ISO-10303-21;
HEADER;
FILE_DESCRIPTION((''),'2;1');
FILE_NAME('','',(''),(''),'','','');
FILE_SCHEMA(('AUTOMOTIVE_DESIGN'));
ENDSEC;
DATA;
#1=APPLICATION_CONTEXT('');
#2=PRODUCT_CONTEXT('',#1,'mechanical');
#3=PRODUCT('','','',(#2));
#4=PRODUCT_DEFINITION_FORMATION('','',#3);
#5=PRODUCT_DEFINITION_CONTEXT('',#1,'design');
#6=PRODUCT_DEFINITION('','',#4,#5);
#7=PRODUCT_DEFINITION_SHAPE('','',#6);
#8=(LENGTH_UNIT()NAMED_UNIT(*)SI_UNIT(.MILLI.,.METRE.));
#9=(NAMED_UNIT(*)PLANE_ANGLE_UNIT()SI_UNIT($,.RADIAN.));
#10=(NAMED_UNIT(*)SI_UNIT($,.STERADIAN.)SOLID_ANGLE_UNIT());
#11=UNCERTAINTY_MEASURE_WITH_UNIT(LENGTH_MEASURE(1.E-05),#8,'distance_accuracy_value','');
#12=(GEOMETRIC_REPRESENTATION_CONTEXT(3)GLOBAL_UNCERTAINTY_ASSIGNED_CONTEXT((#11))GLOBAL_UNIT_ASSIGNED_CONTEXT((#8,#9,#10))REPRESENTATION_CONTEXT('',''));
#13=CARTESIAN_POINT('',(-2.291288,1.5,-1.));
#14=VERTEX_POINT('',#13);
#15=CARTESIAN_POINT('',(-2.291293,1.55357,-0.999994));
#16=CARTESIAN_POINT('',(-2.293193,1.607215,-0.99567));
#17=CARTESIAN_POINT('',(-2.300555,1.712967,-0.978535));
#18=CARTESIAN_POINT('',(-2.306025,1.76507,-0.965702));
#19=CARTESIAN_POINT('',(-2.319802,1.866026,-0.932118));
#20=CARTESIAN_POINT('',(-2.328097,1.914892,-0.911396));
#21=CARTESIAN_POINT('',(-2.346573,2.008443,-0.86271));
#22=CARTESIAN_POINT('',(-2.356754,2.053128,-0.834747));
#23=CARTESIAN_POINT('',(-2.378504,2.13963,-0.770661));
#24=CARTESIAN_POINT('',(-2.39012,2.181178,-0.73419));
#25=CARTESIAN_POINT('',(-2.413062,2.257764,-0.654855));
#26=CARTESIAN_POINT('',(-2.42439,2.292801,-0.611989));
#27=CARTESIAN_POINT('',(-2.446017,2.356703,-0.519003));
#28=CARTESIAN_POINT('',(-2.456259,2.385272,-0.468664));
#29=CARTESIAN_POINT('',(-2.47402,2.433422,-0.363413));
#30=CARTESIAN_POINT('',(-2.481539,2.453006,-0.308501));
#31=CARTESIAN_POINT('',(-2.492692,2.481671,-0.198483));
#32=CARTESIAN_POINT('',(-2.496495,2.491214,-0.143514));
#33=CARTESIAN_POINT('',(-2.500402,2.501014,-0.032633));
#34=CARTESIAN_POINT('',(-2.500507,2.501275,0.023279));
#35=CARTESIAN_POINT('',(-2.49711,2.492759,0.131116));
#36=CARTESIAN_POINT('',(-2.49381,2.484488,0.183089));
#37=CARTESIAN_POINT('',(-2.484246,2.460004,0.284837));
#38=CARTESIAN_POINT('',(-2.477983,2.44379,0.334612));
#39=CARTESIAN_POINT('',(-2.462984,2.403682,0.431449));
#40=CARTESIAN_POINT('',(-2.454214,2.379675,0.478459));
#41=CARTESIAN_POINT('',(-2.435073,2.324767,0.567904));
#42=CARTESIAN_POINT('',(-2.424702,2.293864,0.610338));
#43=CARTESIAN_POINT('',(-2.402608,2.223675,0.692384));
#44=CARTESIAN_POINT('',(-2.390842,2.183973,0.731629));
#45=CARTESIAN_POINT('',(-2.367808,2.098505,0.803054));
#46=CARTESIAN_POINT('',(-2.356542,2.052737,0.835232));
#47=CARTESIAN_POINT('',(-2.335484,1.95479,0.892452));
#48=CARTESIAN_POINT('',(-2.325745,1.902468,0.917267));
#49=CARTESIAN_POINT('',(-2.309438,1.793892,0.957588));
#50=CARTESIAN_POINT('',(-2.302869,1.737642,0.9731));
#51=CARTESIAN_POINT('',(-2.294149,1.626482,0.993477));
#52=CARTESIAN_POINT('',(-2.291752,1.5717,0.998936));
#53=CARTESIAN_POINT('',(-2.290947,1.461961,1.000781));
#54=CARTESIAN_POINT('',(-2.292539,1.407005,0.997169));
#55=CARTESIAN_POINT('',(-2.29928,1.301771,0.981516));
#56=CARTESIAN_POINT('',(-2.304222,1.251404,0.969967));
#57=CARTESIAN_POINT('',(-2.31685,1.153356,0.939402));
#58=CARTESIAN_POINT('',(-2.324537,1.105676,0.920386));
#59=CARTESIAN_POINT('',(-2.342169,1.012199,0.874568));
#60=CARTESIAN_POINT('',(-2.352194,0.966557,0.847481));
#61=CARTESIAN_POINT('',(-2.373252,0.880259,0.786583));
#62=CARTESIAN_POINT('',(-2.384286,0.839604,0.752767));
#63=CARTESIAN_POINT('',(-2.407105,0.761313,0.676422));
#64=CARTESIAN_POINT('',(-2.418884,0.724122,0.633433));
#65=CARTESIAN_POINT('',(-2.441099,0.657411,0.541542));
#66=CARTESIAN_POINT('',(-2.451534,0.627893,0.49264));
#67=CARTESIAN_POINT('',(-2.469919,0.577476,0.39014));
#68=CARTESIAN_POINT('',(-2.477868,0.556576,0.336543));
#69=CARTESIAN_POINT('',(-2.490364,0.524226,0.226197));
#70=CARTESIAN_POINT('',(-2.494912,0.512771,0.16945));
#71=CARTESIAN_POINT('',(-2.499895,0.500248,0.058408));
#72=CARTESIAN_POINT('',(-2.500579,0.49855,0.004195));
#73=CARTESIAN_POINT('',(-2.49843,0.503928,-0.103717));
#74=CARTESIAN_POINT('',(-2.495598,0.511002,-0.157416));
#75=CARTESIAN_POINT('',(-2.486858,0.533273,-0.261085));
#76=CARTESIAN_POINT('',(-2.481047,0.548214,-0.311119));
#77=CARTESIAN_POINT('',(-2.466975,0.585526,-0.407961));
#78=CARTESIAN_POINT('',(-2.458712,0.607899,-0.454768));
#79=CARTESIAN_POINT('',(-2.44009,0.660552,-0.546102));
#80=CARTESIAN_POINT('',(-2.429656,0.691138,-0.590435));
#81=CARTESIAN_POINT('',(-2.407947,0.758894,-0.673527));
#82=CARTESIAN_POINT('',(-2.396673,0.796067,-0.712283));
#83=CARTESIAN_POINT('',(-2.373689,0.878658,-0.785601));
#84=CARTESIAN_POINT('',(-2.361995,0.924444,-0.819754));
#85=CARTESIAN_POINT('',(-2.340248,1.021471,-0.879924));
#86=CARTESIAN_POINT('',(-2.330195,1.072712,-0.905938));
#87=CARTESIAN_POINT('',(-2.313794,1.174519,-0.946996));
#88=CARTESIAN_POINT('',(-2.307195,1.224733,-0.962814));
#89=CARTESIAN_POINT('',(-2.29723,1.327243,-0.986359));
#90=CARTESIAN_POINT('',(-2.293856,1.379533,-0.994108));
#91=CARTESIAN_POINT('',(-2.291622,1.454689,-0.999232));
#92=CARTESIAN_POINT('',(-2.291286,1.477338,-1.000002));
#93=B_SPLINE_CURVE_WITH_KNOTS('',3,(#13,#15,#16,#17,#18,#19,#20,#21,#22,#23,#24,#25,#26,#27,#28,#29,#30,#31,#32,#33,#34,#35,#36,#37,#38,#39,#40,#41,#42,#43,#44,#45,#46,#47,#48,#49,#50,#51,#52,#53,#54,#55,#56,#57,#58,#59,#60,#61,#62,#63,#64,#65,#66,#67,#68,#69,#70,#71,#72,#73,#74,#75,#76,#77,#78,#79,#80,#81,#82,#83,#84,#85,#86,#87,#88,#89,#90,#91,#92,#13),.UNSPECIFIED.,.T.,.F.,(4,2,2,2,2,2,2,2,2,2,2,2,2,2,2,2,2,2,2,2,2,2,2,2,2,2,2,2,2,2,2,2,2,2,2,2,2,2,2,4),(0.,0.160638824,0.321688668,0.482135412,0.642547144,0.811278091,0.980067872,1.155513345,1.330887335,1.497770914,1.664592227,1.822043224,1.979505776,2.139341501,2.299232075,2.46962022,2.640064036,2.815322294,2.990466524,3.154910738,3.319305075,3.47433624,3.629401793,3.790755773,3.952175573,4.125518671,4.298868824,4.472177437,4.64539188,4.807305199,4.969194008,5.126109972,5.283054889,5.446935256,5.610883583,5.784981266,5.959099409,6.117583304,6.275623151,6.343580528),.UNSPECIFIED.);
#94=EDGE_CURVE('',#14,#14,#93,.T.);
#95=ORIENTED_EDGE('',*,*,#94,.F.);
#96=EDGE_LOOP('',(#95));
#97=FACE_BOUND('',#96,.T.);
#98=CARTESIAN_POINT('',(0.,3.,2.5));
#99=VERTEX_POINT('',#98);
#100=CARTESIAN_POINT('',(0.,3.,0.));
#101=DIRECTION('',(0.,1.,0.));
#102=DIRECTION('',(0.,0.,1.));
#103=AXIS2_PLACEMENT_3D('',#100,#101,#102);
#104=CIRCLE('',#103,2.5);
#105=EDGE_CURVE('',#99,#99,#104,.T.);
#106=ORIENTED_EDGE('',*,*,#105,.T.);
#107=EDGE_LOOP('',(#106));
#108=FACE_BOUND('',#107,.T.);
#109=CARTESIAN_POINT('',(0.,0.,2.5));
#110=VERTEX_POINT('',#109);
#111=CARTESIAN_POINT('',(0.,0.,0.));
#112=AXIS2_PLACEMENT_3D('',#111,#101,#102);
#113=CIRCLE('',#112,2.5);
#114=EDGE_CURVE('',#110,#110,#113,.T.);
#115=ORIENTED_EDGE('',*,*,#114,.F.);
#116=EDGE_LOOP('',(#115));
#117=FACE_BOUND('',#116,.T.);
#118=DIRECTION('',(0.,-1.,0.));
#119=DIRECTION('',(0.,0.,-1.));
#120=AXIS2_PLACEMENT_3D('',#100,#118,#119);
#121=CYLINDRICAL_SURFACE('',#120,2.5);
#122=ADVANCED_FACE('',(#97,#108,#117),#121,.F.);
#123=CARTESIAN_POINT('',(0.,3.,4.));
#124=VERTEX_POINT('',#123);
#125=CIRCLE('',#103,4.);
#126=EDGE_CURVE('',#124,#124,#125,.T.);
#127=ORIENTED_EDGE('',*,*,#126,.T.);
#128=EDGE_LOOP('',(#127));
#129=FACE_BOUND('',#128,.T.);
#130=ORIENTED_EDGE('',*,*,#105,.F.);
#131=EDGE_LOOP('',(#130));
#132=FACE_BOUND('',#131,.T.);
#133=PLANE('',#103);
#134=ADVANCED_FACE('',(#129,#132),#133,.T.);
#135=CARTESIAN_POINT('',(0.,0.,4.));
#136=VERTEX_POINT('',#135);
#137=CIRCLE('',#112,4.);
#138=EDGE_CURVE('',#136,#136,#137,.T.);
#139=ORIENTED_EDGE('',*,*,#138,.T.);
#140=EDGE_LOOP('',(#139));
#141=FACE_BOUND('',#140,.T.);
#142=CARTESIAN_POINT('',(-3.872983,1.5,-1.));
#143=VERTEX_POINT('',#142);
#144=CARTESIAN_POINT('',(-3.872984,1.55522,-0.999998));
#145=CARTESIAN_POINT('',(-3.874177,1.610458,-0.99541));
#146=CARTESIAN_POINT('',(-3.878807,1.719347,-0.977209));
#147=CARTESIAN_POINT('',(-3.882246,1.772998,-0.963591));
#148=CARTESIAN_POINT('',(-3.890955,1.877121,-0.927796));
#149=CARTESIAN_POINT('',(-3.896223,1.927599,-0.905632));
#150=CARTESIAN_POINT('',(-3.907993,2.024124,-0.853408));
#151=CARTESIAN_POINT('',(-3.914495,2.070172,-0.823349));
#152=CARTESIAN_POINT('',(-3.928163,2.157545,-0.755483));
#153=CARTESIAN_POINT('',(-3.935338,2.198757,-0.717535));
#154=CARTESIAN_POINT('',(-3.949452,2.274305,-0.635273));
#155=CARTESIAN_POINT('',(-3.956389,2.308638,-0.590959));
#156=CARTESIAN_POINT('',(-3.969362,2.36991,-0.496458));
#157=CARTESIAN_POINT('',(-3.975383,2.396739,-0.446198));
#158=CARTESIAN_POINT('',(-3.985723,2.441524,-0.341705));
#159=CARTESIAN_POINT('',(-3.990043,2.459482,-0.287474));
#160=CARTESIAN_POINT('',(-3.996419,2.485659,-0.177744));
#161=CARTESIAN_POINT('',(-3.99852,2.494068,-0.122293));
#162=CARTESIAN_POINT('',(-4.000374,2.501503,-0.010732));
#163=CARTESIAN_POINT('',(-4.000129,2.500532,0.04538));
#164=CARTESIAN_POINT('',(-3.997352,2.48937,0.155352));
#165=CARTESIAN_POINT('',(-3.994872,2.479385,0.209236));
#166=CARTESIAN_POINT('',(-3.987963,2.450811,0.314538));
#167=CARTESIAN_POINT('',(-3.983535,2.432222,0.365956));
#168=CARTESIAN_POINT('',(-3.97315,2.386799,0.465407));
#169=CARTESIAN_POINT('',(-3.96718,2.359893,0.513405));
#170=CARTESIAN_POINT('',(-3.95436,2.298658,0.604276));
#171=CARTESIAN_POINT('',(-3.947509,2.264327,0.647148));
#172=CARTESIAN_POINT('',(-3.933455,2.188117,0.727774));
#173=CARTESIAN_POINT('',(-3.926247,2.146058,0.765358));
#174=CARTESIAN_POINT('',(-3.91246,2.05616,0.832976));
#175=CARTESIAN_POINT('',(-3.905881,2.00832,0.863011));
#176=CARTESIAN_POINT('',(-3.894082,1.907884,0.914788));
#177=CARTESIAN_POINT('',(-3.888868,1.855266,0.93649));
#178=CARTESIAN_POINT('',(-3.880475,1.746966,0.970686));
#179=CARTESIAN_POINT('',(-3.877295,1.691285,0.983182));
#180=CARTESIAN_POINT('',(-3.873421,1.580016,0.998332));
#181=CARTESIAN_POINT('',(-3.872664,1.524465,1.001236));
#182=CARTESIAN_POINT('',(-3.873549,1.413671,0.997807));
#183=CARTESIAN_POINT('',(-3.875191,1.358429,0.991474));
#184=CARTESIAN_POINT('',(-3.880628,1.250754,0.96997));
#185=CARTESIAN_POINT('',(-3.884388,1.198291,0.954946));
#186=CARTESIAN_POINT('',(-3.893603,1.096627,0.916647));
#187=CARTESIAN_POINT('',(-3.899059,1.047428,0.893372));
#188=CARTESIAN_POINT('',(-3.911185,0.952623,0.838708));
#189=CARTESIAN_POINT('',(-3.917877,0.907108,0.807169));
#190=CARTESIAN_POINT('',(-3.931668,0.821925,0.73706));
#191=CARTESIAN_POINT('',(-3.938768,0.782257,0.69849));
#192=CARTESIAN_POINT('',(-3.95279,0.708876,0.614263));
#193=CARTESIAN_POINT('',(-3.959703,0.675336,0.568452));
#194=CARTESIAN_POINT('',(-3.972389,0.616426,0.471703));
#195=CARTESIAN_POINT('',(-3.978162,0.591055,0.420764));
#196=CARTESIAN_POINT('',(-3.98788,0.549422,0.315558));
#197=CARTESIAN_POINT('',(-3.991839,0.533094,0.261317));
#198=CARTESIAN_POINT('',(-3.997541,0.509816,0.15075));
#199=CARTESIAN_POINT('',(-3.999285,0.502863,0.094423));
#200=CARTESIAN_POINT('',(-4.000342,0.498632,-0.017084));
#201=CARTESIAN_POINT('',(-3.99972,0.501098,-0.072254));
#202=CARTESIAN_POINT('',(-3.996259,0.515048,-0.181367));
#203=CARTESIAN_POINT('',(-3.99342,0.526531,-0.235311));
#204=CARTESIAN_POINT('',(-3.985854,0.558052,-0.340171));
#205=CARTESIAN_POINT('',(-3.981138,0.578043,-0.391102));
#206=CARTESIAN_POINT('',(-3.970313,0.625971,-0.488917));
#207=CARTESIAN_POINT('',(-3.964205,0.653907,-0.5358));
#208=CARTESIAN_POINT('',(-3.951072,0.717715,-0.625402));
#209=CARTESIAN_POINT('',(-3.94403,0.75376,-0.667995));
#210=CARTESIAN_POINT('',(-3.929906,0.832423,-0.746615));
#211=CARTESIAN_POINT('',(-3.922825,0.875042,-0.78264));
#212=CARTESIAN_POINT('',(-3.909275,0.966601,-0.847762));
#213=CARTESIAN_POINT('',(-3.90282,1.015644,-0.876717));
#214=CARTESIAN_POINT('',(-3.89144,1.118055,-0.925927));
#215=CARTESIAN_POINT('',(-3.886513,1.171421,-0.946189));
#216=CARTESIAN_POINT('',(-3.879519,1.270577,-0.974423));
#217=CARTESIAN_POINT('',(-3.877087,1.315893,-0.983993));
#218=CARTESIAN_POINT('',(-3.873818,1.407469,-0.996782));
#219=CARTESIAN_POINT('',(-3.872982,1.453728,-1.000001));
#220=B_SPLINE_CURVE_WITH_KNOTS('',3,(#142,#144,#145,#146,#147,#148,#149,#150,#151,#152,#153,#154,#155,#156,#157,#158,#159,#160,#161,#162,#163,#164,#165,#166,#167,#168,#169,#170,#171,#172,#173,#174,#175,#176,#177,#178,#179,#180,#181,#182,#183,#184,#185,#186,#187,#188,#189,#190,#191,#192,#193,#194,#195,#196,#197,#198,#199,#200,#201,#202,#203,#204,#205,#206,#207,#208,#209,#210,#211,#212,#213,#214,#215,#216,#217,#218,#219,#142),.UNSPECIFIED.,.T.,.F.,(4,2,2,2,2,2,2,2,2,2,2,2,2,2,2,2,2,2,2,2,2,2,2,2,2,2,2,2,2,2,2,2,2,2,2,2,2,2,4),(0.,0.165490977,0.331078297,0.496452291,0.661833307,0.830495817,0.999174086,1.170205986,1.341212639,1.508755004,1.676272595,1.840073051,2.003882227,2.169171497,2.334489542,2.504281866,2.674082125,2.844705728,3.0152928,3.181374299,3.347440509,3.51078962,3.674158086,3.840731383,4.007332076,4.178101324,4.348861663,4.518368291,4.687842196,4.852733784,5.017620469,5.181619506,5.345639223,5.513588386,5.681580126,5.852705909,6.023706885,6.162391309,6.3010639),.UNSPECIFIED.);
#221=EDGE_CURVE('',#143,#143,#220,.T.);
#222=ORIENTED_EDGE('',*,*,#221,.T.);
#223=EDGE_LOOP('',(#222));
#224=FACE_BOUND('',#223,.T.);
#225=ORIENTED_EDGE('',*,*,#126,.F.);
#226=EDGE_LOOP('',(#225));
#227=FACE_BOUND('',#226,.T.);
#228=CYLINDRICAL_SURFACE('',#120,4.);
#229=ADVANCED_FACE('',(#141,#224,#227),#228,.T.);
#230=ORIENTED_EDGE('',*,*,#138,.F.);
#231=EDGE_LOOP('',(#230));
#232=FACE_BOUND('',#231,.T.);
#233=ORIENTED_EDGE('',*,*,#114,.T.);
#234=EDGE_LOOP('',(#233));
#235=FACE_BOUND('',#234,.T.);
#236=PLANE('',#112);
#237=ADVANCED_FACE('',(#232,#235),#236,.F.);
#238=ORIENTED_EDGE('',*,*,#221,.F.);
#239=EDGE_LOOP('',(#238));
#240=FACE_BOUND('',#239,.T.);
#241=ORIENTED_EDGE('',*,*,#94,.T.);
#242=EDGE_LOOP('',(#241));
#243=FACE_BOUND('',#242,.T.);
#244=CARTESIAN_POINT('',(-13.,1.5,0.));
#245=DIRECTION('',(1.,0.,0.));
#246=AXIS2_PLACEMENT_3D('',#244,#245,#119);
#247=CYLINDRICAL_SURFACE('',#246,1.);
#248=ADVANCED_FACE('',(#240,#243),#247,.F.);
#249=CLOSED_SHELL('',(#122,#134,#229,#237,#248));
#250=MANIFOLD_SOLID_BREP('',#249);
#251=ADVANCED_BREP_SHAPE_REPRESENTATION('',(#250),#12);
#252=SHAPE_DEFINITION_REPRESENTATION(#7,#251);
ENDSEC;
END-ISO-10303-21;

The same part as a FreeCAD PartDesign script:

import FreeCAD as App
import Part
import Sketcher
Q = App.Units.Quantity

doc = App.newDocument("Part")
body = doc.addObject("PartDesign::Body", "Body")

sketch1 = doc.addObject("Sketcher::SketchObject", "Sketch")
body.addObject(sketch1)
sketch1.AttachmentSupport = (doc.XZ_Plane, [""])
sketch1.MapMode = "FlatFace"
sketch1.addGeometry(Part.Circle(App.Vector(0, 0, 0), App.Vector(0, 0, 1), 4), False)
sketch1.addGeometry(Part.Circle(App.Vector(0, 0, 0), App.Vector(0, 0, 1), 2.5), False)
sketch1.addConstraint(Sketcher.Constraint("Coincident", 0, 3, -1, 1))
sketch1.addConstraint(Sketcher.Constraint("Coincident", 1, 3, -1, 1))
sketch1.addConstraint(Sketcher.Constraint("Diameter", 0, Q("8 mm")))
sketch1.addConstraint(Sketcher.Constraint("Diameter", 1, Q("5 mm")))
pad1 = doc.addObject("PartDesign::Pad", "Pad")
body.addObject(pad1)
pad1.Profile = sketch1
pad1.Length = 3
pad1.Reversed = True

sketch2 = doc.addObject("Sketcher::SketchObject", "Sketch001")
body.addObject(sketch2)
sketch2.AttachmentSupport = (doc.YZ_Plane, [""])
sketch2.MapMode = "FlatFace"
sketch2.addGeometry(Part.Circle(App.Vector(1.5, 0, 0), App.Vector(0, 0, 1), 1), False)
sketch2.addConstraint(Sketcher.Constraint("PointOnObject", 0, 3, -1))
sketch2.addConstraint(Sketcher.Constraint("Diameter", 0, Q("2 mm")))
sketch2.addConstraint(Sketcher.Constraint("DistanceX", -1, 1, 0, 3, Q("1.5 mm")))
pocket1 = doc.addObject("PartDesign::Pocket", "Pocket")
body.addObject(pocket1)
pocket1.Profile = sketch2
pocket1.Length = 13

doc.recompute()
